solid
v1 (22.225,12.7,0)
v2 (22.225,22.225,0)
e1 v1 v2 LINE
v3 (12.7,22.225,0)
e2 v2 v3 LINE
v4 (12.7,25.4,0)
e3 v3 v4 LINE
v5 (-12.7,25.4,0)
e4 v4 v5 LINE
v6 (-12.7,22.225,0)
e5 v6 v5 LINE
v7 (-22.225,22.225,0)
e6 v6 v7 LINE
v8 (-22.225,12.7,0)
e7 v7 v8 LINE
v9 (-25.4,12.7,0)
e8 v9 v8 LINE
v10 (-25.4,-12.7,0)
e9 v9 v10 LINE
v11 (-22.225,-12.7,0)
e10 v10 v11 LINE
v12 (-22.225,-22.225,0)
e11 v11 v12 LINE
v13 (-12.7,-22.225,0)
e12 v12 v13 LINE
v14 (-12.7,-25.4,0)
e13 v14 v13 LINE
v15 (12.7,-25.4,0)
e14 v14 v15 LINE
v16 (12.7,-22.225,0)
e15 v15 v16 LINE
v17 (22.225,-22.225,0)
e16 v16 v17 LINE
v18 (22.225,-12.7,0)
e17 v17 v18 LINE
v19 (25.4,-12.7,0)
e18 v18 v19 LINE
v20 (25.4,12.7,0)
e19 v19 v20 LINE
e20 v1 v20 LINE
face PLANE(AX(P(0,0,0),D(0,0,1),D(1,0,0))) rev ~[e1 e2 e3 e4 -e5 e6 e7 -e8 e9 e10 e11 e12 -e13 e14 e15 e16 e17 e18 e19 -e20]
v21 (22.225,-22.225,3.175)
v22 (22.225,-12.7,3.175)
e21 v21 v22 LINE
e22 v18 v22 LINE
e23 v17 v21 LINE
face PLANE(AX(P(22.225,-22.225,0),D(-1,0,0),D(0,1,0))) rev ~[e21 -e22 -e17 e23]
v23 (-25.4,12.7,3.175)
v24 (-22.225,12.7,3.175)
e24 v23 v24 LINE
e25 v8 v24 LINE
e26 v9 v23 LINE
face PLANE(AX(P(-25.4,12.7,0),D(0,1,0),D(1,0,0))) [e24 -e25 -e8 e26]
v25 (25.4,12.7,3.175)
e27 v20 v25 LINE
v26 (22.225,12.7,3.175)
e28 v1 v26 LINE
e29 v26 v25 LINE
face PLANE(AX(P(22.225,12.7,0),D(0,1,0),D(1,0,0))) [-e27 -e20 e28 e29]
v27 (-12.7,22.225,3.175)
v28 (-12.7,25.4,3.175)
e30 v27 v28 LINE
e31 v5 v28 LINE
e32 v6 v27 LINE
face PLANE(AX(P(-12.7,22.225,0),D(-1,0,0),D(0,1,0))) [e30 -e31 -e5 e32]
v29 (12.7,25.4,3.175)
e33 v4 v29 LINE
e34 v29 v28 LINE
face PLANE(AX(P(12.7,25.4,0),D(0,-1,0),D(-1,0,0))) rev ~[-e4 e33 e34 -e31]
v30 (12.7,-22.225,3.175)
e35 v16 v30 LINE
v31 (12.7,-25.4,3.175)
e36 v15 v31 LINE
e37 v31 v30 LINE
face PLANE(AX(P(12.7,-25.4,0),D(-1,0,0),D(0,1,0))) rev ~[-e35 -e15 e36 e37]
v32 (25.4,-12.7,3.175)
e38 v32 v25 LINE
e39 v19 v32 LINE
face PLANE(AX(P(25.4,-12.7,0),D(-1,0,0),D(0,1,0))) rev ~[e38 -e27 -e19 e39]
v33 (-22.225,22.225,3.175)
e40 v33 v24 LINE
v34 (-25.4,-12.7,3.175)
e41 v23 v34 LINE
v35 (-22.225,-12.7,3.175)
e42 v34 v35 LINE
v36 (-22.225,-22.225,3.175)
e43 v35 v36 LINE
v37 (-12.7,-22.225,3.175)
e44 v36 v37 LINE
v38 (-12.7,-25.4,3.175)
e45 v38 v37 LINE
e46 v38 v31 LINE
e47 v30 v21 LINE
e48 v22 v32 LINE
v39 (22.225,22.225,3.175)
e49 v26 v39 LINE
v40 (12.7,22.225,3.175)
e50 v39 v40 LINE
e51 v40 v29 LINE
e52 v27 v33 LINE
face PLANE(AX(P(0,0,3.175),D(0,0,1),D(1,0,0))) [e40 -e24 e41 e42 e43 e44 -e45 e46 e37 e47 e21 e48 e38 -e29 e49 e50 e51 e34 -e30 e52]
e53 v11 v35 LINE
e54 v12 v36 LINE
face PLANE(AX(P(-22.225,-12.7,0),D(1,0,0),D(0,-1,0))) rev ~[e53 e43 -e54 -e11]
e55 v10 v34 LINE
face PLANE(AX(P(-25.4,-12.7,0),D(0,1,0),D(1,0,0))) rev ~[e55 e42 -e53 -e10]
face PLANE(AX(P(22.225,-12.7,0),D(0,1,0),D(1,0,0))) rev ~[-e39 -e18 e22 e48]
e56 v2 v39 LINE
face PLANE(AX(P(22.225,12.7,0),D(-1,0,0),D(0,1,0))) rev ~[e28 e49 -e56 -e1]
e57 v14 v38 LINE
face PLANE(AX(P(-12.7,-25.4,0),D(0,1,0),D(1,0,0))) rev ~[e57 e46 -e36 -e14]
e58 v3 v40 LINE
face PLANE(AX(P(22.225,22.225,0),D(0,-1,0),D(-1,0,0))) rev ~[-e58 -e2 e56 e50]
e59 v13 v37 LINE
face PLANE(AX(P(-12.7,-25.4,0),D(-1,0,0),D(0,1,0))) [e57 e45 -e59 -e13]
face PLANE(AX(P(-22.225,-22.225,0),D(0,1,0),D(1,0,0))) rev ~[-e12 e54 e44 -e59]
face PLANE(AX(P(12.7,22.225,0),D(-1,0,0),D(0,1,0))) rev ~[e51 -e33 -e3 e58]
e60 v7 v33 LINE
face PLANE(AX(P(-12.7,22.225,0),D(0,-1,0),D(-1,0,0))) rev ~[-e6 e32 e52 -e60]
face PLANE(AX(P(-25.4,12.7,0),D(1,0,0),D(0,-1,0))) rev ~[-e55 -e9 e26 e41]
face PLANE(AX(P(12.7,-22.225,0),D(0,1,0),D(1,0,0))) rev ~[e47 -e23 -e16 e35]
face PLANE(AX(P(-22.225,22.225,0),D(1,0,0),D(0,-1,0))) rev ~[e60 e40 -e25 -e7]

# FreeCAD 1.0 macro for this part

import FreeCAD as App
import Part
import Sketcher
from FreeCAD import Vector
Q = App.Units.Quantity

doc = App.newDocument("Part")
body = doc.addObject("PartDesign::Body", "Body")

# Sketch on XY plane
sketch1 = body.newObject("Sketcher::SketchObject", "Sketch")
sketch1.AttachmentSupport = (doc.getObject("XY_Plane"), [""])
sketch1.MapMode = "FlatFace"
sketch1.addGeometry(Part.LineSegment(Vector(-22.2, 22.2, 0), Vector(-22.2, 12.7, 0)), False)
sketch1.addGeometry(Part.LineSegment(Vector(-22.2, 12.7, 0), Vector(-25.4, 12.7, 0)), False)
sketch1.addGeometry(Part.LineSegment(Vector(-25.4, 12.7, 0), Vector(-25.4, -12.7, 0)), False)
sketch1.addGeometry(Part.LineSegment(Vector(-25.4, -12.7, 0), Vector(-22.2, -12.7, 0)), False)
sketch1.addGeometry(Part.LineSegment(Vector(-22.2, -12.7, 0), Vector(-22.2, -22.2, 0)), False)
sketch1.addGeometry(Part.LineSegment(Vector(-22.2, -22.2, 0), Vector(-12.7, -22.2, 0)), False)
sketch1.addGeometry(Part.LineSegment(Vector(-12.7, -22.2, 0), Vector(-12.7, -25.4, 0)), False)
sketch1.addGeometry(Part.LineSegment(Vector(-12.7, -25.4, 0), Vector(12.7, -25.4, 0)), False)
sketch1.addGeometry(Part.LineSegment(Vector(12.7, -25.4, 0), Vector(12.7, -22.2, 0)), False)
sketch1.addGeometry(Part.LineSegment(Vector(12.7, -22.2, 0), Vector(22.2, -22.2, 0)), False)
sketch1.addGeometry(Part.LineSegment(Vector(22.2, -22.2, 0), Vector(22.2, -12.7, 0)), False)
sketch1.addGeometry(Part.LineSegment(Vector(22.2, -12.7, 0), Vector(25.4, -12.7, 0)), False)
sketch1.addGeometry(Part.LineSegment(Vector(25.4, -12.7, 0), Vector(25.4, 12.7, 0)), False)
sketch1.addGeometry(Part.LineSegment(Vector(25.4, 12.7, 0), Vector(22.2, 12.7, 0)), False)
sketch1.addGeometry(Part.LineSegment(Vector(22.2, 12.7, 0), Vector(22.2, 22.2, 0)), False)
sketch1.addGeometry(Part.LineSegment(Vector(22.2, 22.2, 0), Vector(12.7, 22.2, 0)), False)
sketch1.addGeometry(Part.LineSegment(Vector(12.7, 22.2, 0), Vector(12.7, 25.4, 0)), False)
sketch1.addGeometry(Part.LineSegment(Vector(12.7, 25.4, 0), Vector(-12.7, 25.4, 0)), False)
sketch1.addGeometry(Part.LineSegment(Vector(-12.7, 25.4, 0), Vector(-12.7, 22.2, 0)), False)
sketch1.addGeometry(Part.LineSegment(Vector(-12.7, 22.2, 0), Vector(-22.2, 22.2, 0)), False)
sketch1.addConstraint(Sketcher.Constraint("Coincident", 0, 2, 1, 1))
sketch1.addConstraint(Sketcher.Constraint("Coincident", 1, 2, 2, 1))
sketch1.addConstraint(Sketcher.Constraint("Coincident", 2, 2, 3, 1))
sketch1.addConstraint(Sketcher.Constraint("Coincident", 3, 2, 4, 1))
sketch1.addConstraint(Sketcher.Constraint("Coincident", 4, 2, 5, 1))
sketch1.addConstraint(Sketcher.Constraint("Coincident", 5, 2, 6, 1))
sketch1.addConstraint(Sketcher.Constraint("Coincident", 6, 2, 7, 1))
sketch1.addConstraint(Sketcher.Constraint("Coincident", 7, 2, 8, 1))
sketch1.addConstraint(Sketcher.Constraint("Coincident", 8, 2, 9, 1))
sketch1.addConstraint(Sketcher.Constraint("Coincident", 9, 2, 10, 1))
sketch1.addConstraint(Sketcher.Constraint("Coincident", 10, 2, 11, 1))
sketch1.addConstraint(Sketcher.Constraint("Coincident", 11, 2, 12, 1))
sketch1.addConstraint(Sketcher.Constraint("Coincident", 12, 2, 13, 1))
sketch1.addConstraint(Sketcher.Constraint("Coincident", 13, 2, 14, 1))
sketch1.addConstraint(Sketcher.Constraint("Coincident", 14, 2, 15, 1))
sketch1.addConstraint(Sketcher.Constraint("Coincident", 15, 2, 16, 1))
sketch1.addConstraint(Sketcher.Constraint("Coincident", 16, 2, 17, 1))
sketch1.addConstraint(Sketcher.Constraint("Coincident", 17, 2, 18, 1))
sketch1.addConstraint(Sketcher.Constraint("Coincident", 18, 2, 19, 1))
sketch1.addConstraint(Sketcher.Constraint("Coincident", 19, 2, 0, 1))
sketch1.addConstraint(Sketcher.Constraint("Vertical", 0))
sketch1.addConstraint(Sketcher.Constraint("Horizontal", 1))
sketch1.addConstraint(Sketcher.Constraint("Vertical", 2))
sketch1.addConstraint(Sketcher.Constraint("Horizontal", 3))
sketch1.addConstraint(Sketcher.Constraint("Vertical", 4))
sketch1.addConstraint(Sketcher.Constraint("Horizontal", 5))
sketch1.addConstraint(Sketcher.Constraint("Vertical", 6))
sketch1.addConstraint(Sketcher.Constraint("Horizontal", 7))
sketch1.addConstraint(Sketcher.Constraint("Vertical", 8))
sketch1.addConstraint(Sketcher.Constraint("Horizontal", 9))
sketch1.addConstraint(Sketcher.Constraint("Vertical", 10))
sketch1.addConstraint(Sketcher.Constraint("Horizontal", 11))
sketch1.addConstraint(Sketcher.Constraint("Vertical", 12))
sketch1.addConstraint(Sketcher.Constraint("Horizontal", 13))
sketch1.addConstraint(Sketcher.Constraint("Vertical", 14))
sketch1.addConstraint(Sketcher.Constraint("Horizontal", 15))
sketch1.addConstraint(Sketcher.Constraint("Vertical", 16))
sketch1.addConstraint(Sketcher.Constraint("Horizontal", 17))
sketch1.addConstraint(Sketcher.Constraint("Vertical", 18))
sketch1.addConstraint(Sketcher.Constraint("Horizontal", 19))
sketch1.addConstraint(Sketcher.Constraint("Symmetric", 0, 2, 10, 2, -1, 1))
sketch1.addConstraint(Sketcher.Constraint("Symmetric", 2, 2, 12, 2, -1, 1))
sketch1.addConstraint(Sketcher.Constraint("Symmetric", 4, 2, 14, 2, -1, 1))
sketch1.addConstraint(Sketcher.Constraint("Symmetric", 6, 2, 16, 2, -1, 1))
sketch1.addConstraint(Sketcher.Constraint("Symmetric", 8, 2, 18, 2, -1, 1))
sketch1.addConstraint(Sketcher.Constraint("Symmetric", 5, 2, 8, 2, -2))
sketch1.addConstraint(Sketcher.Constraint("Symmetric", 3, 2, 10, 2, -2))
sketch1.addConstraint(Sketcher.Constraint("Equal", 19, 0))
sketch1.addConstraint(Sketcher.Constraint("Equal", 17, 2))
sketch1.addConstraint(Sketcher.Constraint("Equal", 13, 6))
sketch1.addConstraint(Sketcher.Constraint("DistanceX", 7, 1, 7, 2, Q("1 in")))
sketch1.addConstraint(Sketcher.Constraint("DistanceX", 1, 2, -1, 1, Q("1 in")))
sketch1.addConstraint(Sketcher.Constraint("DistanceX", 1, 2, 1, 1, Q("0.125 in")))
pad1 = body.newObject("PartDesign::Pad", "Pad")
pad1.Profile = sketch1
pad1.Length = Q("0.125 in")

doc.recompute()
